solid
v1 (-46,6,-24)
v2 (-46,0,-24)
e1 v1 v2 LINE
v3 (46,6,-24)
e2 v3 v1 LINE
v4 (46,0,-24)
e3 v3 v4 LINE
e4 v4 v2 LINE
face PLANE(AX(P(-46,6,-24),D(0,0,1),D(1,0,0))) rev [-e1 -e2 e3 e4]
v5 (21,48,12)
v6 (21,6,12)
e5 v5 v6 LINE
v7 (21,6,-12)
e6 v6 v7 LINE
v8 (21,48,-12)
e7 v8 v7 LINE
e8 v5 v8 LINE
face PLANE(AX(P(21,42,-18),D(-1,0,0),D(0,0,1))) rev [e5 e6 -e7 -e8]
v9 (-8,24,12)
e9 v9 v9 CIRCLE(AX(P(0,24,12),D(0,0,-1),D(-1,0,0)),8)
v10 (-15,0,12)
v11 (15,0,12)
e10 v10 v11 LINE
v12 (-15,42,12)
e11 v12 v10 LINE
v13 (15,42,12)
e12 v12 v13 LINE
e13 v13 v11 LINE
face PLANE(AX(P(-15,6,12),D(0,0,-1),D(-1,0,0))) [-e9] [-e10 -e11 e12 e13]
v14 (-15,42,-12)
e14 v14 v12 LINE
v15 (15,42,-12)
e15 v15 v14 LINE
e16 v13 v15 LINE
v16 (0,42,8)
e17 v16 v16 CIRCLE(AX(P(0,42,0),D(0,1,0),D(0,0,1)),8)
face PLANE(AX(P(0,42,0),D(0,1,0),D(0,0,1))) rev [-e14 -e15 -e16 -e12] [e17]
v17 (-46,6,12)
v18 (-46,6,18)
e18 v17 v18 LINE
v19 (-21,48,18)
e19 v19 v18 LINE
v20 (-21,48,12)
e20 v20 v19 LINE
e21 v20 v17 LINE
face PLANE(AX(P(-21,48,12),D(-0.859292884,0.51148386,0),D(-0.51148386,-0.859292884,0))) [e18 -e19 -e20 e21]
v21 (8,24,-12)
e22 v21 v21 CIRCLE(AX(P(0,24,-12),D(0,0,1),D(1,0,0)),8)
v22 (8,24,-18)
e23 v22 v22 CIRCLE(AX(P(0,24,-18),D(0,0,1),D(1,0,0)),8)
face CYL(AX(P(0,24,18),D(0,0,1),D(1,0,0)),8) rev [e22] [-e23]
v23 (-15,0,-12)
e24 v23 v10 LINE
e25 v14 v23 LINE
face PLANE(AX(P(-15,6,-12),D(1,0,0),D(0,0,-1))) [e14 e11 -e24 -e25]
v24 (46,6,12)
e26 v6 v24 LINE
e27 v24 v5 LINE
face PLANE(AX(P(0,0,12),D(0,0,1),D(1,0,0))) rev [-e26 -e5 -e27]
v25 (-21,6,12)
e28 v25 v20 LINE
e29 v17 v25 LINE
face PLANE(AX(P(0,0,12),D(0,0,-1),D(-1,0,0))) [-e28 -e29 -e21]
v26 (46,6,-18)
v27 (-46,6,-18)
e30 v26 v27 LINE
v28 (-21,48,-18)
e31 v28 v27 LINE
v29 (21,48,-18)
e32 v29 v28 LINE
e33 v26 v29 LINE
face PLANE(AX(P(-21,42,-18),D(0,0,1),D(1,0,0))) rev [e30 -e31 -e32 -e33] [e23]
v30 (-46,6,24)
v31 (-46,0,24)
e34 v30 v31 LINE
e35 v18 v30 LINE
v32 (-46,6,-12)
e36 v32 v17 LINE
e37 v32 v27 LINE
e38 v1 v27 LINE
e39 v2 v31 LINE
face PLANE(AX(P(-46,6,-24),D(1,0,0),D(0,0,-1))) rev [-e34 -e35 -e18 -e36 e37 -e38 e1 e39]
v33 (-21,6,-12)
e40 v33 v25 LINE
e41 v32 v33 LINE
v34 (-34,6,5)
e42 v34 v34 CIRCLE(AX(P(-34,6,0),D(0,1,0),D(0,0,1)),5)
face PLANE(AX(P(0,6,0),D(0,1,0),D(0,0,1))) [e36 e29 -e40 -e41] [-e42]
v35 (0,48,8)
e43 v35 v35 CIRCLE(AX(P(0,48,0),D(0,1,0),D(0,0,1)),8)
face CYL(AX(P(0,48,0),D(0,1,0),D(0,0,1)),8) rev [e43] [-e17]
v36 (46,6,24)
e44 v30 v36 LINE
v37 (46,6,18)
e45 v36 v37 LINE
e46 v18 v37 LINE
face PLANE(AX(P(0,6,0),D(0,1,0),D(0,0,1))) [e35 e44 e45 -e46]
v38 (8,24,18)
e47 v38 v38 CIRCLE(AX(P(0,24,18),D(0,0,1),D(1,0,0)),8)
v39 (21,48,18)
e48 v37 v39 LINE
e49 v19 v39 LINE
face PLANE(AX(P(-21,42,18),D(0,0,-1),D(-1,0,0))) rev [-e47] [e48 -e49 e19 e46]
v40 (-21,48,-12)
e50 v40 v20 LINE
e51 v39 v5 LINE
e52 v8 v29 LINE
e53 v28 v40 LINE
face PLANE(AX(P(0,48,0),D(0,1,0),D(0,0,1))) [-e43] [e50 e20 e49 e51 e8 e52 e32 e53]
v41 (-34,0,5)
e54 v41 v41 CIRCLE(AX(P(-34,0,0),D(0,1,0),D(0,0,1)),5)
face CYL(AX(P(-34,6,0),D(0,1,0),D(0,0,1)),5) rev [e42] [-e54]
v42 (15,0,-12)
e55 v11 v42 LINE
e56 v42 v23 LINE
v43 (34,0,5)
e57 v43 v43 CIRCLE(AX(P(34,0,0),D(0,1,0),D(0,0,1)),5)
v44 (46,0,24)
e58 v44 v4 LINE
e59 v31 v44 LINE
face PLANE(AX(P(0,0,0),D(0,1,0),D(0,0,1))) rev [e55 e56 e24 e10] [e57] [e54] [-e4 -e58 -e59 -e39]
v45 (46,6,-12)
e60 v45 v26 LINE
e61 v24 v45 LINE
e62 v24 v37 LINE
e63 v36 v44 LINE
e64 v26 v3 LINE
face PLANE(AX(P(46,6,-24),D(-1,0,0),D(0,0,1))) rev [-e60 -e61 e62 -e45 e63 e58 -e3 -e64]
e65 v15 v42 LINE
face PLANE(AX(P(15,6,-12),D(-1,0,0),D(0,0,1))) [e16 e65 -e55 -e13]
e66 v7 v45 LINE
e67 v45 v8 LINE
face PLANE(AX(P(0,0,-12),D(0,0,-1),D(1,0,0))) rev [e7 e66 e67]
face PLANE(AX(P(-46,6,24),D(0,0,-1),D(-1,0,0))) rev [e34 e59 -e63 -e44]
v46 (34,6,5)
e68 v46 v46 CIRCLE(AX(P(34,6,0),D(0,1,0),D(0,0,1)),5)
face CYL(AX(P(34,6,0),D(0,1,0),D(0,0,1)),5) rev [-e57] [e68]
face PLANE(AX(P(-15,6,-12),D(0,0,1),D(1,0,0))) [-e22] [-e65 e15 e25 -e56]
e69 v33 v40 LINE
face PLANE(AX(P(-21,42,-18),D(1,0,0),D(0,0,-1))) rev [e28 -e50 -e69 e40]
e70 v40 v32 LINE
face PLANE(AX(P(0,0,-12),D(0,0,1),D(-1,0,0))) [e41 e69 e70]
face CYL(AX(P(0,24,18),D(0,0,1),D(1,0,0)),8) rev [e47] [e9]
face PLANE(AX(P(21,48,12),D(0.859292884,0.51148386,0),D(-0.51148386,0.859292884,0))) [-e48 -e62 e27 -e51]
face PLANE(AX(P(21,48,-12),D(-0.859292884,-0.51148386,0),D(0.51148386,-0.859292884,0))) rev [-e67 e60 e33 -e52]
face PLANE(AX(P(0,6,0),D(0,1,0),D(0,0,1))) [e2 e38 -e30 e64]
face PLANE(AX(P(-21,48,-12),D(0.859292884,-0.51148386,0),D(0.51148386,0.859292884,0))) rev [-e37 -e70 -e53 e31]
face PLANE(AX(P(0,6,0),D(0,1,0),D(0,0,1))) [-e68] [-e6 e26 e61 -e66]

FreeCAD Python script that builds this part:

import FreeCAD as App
import Part
import Sketcher

V = App.Vector
Q = App.Units.Quantity


def add_polygon(sketch, points):
    """Adds a closed chain of lines whose ends are joined by coincident constraints."""
    first, n = sketch.GeometryCount, len(points)
    for a, b in zip(points, points[1:] + points[:1]):
        sketch.addGeometry(Part.LineSegment(App.Vector(*a, 0), App.Vector(*b, 0)), False)
    for i in range(n):
        sketch.addConstraint(Sketcher.Constraint("Coincident", first + i, 2, first + (i + 1) % n, 1))

doc = App.newDocument("Part")
params = doc.addObject("Spreadsheet::Sheet", "Params")
for row, (alias, value) in enumerate([
    ("sketch1_width", "92 mm"),
    ("sketch1_width2", "30 mm"),
    ("sketch1_height", "48 mm"),
    ("sketch1_height2", "24 mm"),
    ("pad1_length", "6 mm"),
    ("sketch2_width", "42 mm"),
    ("sketch2_width2", "30 mm"),
    ("sketch2_height", "36 mm"),
    ("sketch2_height2", "24 mm"),
    ("pad2_length", "36 mm"),
    ("sketch3_width", "42 mm"),
    ("sketch3_height", "36 mm"),
    ("pad3_length", "6 mm"),
    ("sketch4_width", "25 mm"),
    ("sketch4_height", "42 mm"),
    ("pad4_length", "6 mm"),
    ("sketch5_diameter", "16 mm"),
    ("hole_diameter", "16 mm"),
    ("sketch6_diameter", "16 mm"),
    ("hole2_diameter", "16 mm"),
    ("sketch7_diameter", "10 mm"),
    ("hole3_diameter", "10 mm"),
], start=1):
    params.set(f"A{row}", alias)
    params.set(f"B{row}", "=" + value)
    params.setAlias(f"B{row}", alias)

body = doc.addObject("PartDesign::Body", "Body")

# Sketch on XZ plane
sketch1 = body.newObject("Sketcher::SketchObject", "Sketch")
sketch1.AttachmentSupport = (doc.getObject("XZ_Plane"), [""])
sketch1.MapMode = "FlatFace"
add_polygon(sketch1, [(-46, -24), (-46, 24), (46, 24), (46, -24)])  # lines 0-3
add_polygon(sketch1, [(15, 12), (-15, 12), (-15, -12), (15, -12)])  # lines 4-7
sketch1.addConstraint([
    Sketcher.Constraint("Vertical", 0),
    Sketcher.Constraint("Horizontal", 1),
    Sketcher.Constraint("Vertical", 2),
    Sketcher.Constraint("Horizontal", 3),
    Sketcher.Constraint("Horizontal", 4),
    Sketcher.Constraint("Vertical", 5),
    Sketcher.Constraint("Horizontal", 6),
    Sketcher.Constraint("Vertical", 7),
    Sketcher.Constraint("Symmetric", 0, 2, 2, 2, -1, 1),
    Sketcher.Constraint("Symmetric", 4, 2, 6, 2, -1, 1),
    Sketcher.Constraint("DistanceX", 1, 1, 1, 2, Q("92 mm")),
    Sketcher.Constraint("DistanceX", 4, 2, 4, 1, Q("30 mm")),
    Sketcher.Constraint("DistanceY", 0, 1, 0, 2, Q("48 mm")),
    Sketcher.Constraint("DistanceY", 5, 2, 5, 1, Q("24 mm")),
])
sketch1.setExpression("Constraints[18]", "Params.sketch1_width")
sketch1.setExpression("Constraints[19]", "Params.sketch1_width2")
sketch1.setExpression("Constraints[20]", "Params.sketch1_height")
sketch1.setExpression("Constraints[21]", "Params.sketch1_height2")
pad1 = body.newObject("PartDesign::Pad", "Pad")
pad1.Profile = sketch1
pad1.setExpression("Length", "Params.pad1_length")
pad1.Reversed = True

# Sketch on XZ plane
sketch2 = body.newObject("Sketcher::SketchObject", "Sketch001")
sketch2.AttachmentSupport = (doc.getObject("XZ_Plane"), [""])
sketch2.MapMode = "FlatFace"
sketch2.AttachmentOffset = App.Placement(V(0, 0, -6), App.Rotation())
add_polygon(sketch2, [(-21, -18), (-21, 18), (21, 18), (21, -18)])  # lines 0-3
add_polygon(sketch2, [(15, 12), (-15, 12), (-15, -12), (15, -12)])  # lines 4-7
sketch2.addConstraint([
    Sketcher.Constraint("Vertical", 0),
    Sketcher.Constraint("Horizontal", 1),
    Sketcher.Constraint("Vertical", 2),
    Sketcher.Constraint("Horizontal", 3),
    Sketcher.Constraint("Horizontal", 4),
    Sketcher.Constraint("Vertical", 5),
    Sketcher.Constraint("Horizontal", 6),
    Sketcher.Constraint("Vertical", 7),
    Sketcher.Constraint("Symmetric", 0, 2, 2, 2, -1, 1),
    Sketcher.Constraint("Symmetric", 4, 2, 6, 2, -1, 1),
    Sketcher.Constraint("DistanceX", 1, 1, 1, 2, Q("42 mm")),
    Sketcher.Constraint("DistanceX", 4, 2, 4, 1, Q("30 mm")),
    Sketcher.Constraint("DistanceY", 0, 1, 0, 2, Q("36 mm")),
    Sketcher.Constraint("DistanceY", 5, 2, 5, 1, Q("24 mm")),
])
sketch2.setExpression("Constraints[18]", "Params.sketch2_width")
sketch2.setExpression("Constraints[19]", "Params.sketch2_width2")
sketch2.setExpression("Constraints[20]", "Params.sketch2_height")
sketch2.setExpression("Constraints[21]", "Params.sketch2_height2")
pad2 = body.newObject("PartDesign::Pad", "Pad001")
pad2.Profile = sketch2
pad2.setExpression("Length", "Params.pad2_length")
pad2.Reversed = True

# Sketch on XZ plane
sketch3 = body.newObject("Sketcher::SketchObject", "Sketch002")
sketch3.AttachmentSupport = (doc.getObject("XZ_Plane"), [""])
sketch3.MapMode = "FlatFace"
sketch3.AttachmentOffset = App.Placement(V(0, 0, -42), App.Rotation())
add_polygon(sketch3, [(-21, -18), (-21, 18), (21, 18), (21, -18)])  # lines 0-3
sketch3.addConstraint([
    Sketcher.Constraint("Vertical", 0),
    Sketcher.Constraint("Horizontal", 1),
    Sketcher.Constraint("Vertical", 2),
    Sketcher.Constraint("Horizontal", 3),
    Sketcher.Constraint("Symmetric", 0, 2, 2, 2, -1, 1),
    Sketcher.Constraint("DistanceX", 1, 1, 1, 2, Q("42 mm")),
    Sketcher.Constraint("DistanceY", 0, 1, 0, 2, Q("36 mm")),
])
sketch3.setExpression("Constraints[9]", "Params.sketch3_width")
sketch3.setExpression("Constraints[10]", "Params.sketch3_height")
pad3 = body.newObject("PartDesign::Pad", "Pad002")
pad3.Profile = sketch3
pad3.setExpression("Length", "Params.pad3_length")
pad3.Reversed = True

# Sketch on XY plane
sketch4 = body.newObject("Sketcher::SketchObject", "Sketch003")
sketch4.AttachmentSupport = (doc.getObject("XY_Plane"), [""])
sketch4.MapMode = "FlatFace"
sketch4.AttachmentOffset = App.Placement(V(0, 0, 18), App.Rotation())
add_polygon(sketch4, [(-21, 48), (-46, 6), (-21, 6)])  # lines 0-2
add_polygon(sketch4, [(46, 6), (21, 48), (21, 6)])  # lines 3-5
sketch4.addConstraint([
    Sketcher.Constraint("Horizontal", 1),
    Sketcher.Constraint("Vertical", 2),
    Sketcher.Constraint("Vertical", 4),
    Sketcher.Constraint("Horizontal", 5),
    Sketcher.Constraint("Symmetric", 2, 2, 3, 2, -2),
    Sketcher.Constraint("Symmetric", 0, 2, 5, 2, -2),
    Sketcher.Constraint("DistanceX", 1, 1, 1, 2, Q("25 mm")),
    Sketcher.Constraint("DistanceY", 2, 1, 2, 2, Q("42 mm")),
    Sketcher.Constraint("DistanceX", 0, 2, -1, 1, Q("46 mm")),
    Sketcher.Constraint("DistanceY", -1, 1, 0, 2, Q("6 mm")),
])
sketch4.setExpression("Constraints[12]", "Params.sketch4_width")
sketch4.setExpression("Constraints[13]", "Params.sketch4_height")
pad4 = body.newObject("PartDesign::Pad", "Pad003")
pad4.Profile = sketch4
pad4.setExpression("Length", "Params.pad4_length")
pad4.Reversed = True
doc.recompute()

mirrored = body.newObject("PartDesign::Mirrored", "Mirrored")
mirrored.Originals = [pad4]
mirrored.MirrorPlane = (doc.getObject("XY_Plane"), [""])
body.Tip = mirrored

# Sketch on XY plane
sketch5 = body.newObject("Sketcher::SketchObject", "Sketch004")
sketch5.AttachmentSupport = (doc.getObject("XY_Plane"), [""])
sketch5.MapMode = "FlatFace"
sketch5.AttachmentOffset = App.Placement(V(0, 0, 18), App.Rotation())
sketch5.addGeometry(Part.Circle(V(0, 24, 0), V(0, 0, 1), 8), False)
sketch5.addConstraint([
    Sketcher.Constraint("PointOnObject", 0, 3, -2),
    Sketcher.Constraint("Diameter", 0, Q("16 mm")),
    Sketcher.Constraint("DistanceY", -1, 1, 0, 3, Q("24 mm")),
])
sketch5.setExpression("Constraints[1]", "Params.sketch5_diameter")
doc.recompute()
hole = body.newObject("PartDesign::Hole", "Hole")
hole.Profile = sketch5
hole.ThreadType = "None"
hole.setExpression("Diameter", "Params.hole_diameter")
hole.DepthType = "ThroughAll"

# Sketch on XZ plane
sketch6 = body.newObject("Sketcher::SketchObject", "Sketch005")
sketch6.AttachmentSupport = (doc.getObject("XZ_Plane"), [""])
sketch6.MapMode = "FlatFace"
sketch6.AttachmentOffset = App.Placement(V(0, 0, -48), App.Rotation())
sketch6.addGeometry(Part.Circle(V(0, 0, 0), V(0, 0, 1), 8), False)
sketch6.addConstraint([
    Sketcher.Constraint("Coincident", 0, 3, -1, 1),
    Sketcher.Constraint("Diameter", 0, Q("16 mm")),
])
sketch6.setExpression("Constraints[1]", "Params.sketch6_diameter")
doc.recompute()
hole2 = body.newObject("PartDesign::Hole", "Hole001")
hole2.Profile = sketch6
hole2.ThreadType = "None"
hole2.setExpression("Diameter", "Params.hole2_diameter")
hole2.DepthType = "ThroughAll"
hole2.Reversed = True

# Sketch on XZ plane
sketch7 = body.newObject("Sketcher::SketchObject", "Sketch006")
sketch7.AttachmentSupport = (doc.getObject("XZ_Plane"), [""])
sketch7.MapMode = "FlatFace"
sketch7.AttachmentOffset = App.Placement(V(0, 0, -6), App.Rotation())
sketch7.addGeometry([
    Part.Circle(V(-34, 0, 0), V(0, 0, 1), 5),
    Part.Circle(V(34, 0, 0), V(0, 0, 1), 5),
], False)
sketch7.addConstraint([
    Sketcher.Constraint("Equal", 0, 1),
    Sketcher.Constraint("Symmetric", 0, 3, 1, 3, -1, 1),
    Sketcher.Constraint("PointOnObject", 0, 3, -1),
    Sketcher.Constraint("Diameter", 0, Q("10 mm")),
    Sketcher.Constraint("DistanceX", 0, 3, -1, 1, Q("34 mm")),
])
sketch7.setExpression("Constraints[3]", "Params.sketch7_diameter")
doc.recompute()
hole3 = body.newObject("PartDesign::Hole", "Hole002")
hole3.Profile = sketch7
hole3.ThreadType = "None"
hole3.setExpression("Diameter", "Params.hole3_diameter")
hole3.DepthType = "ThroughAll"
hole3.Reversed = True

doc.recompute()
